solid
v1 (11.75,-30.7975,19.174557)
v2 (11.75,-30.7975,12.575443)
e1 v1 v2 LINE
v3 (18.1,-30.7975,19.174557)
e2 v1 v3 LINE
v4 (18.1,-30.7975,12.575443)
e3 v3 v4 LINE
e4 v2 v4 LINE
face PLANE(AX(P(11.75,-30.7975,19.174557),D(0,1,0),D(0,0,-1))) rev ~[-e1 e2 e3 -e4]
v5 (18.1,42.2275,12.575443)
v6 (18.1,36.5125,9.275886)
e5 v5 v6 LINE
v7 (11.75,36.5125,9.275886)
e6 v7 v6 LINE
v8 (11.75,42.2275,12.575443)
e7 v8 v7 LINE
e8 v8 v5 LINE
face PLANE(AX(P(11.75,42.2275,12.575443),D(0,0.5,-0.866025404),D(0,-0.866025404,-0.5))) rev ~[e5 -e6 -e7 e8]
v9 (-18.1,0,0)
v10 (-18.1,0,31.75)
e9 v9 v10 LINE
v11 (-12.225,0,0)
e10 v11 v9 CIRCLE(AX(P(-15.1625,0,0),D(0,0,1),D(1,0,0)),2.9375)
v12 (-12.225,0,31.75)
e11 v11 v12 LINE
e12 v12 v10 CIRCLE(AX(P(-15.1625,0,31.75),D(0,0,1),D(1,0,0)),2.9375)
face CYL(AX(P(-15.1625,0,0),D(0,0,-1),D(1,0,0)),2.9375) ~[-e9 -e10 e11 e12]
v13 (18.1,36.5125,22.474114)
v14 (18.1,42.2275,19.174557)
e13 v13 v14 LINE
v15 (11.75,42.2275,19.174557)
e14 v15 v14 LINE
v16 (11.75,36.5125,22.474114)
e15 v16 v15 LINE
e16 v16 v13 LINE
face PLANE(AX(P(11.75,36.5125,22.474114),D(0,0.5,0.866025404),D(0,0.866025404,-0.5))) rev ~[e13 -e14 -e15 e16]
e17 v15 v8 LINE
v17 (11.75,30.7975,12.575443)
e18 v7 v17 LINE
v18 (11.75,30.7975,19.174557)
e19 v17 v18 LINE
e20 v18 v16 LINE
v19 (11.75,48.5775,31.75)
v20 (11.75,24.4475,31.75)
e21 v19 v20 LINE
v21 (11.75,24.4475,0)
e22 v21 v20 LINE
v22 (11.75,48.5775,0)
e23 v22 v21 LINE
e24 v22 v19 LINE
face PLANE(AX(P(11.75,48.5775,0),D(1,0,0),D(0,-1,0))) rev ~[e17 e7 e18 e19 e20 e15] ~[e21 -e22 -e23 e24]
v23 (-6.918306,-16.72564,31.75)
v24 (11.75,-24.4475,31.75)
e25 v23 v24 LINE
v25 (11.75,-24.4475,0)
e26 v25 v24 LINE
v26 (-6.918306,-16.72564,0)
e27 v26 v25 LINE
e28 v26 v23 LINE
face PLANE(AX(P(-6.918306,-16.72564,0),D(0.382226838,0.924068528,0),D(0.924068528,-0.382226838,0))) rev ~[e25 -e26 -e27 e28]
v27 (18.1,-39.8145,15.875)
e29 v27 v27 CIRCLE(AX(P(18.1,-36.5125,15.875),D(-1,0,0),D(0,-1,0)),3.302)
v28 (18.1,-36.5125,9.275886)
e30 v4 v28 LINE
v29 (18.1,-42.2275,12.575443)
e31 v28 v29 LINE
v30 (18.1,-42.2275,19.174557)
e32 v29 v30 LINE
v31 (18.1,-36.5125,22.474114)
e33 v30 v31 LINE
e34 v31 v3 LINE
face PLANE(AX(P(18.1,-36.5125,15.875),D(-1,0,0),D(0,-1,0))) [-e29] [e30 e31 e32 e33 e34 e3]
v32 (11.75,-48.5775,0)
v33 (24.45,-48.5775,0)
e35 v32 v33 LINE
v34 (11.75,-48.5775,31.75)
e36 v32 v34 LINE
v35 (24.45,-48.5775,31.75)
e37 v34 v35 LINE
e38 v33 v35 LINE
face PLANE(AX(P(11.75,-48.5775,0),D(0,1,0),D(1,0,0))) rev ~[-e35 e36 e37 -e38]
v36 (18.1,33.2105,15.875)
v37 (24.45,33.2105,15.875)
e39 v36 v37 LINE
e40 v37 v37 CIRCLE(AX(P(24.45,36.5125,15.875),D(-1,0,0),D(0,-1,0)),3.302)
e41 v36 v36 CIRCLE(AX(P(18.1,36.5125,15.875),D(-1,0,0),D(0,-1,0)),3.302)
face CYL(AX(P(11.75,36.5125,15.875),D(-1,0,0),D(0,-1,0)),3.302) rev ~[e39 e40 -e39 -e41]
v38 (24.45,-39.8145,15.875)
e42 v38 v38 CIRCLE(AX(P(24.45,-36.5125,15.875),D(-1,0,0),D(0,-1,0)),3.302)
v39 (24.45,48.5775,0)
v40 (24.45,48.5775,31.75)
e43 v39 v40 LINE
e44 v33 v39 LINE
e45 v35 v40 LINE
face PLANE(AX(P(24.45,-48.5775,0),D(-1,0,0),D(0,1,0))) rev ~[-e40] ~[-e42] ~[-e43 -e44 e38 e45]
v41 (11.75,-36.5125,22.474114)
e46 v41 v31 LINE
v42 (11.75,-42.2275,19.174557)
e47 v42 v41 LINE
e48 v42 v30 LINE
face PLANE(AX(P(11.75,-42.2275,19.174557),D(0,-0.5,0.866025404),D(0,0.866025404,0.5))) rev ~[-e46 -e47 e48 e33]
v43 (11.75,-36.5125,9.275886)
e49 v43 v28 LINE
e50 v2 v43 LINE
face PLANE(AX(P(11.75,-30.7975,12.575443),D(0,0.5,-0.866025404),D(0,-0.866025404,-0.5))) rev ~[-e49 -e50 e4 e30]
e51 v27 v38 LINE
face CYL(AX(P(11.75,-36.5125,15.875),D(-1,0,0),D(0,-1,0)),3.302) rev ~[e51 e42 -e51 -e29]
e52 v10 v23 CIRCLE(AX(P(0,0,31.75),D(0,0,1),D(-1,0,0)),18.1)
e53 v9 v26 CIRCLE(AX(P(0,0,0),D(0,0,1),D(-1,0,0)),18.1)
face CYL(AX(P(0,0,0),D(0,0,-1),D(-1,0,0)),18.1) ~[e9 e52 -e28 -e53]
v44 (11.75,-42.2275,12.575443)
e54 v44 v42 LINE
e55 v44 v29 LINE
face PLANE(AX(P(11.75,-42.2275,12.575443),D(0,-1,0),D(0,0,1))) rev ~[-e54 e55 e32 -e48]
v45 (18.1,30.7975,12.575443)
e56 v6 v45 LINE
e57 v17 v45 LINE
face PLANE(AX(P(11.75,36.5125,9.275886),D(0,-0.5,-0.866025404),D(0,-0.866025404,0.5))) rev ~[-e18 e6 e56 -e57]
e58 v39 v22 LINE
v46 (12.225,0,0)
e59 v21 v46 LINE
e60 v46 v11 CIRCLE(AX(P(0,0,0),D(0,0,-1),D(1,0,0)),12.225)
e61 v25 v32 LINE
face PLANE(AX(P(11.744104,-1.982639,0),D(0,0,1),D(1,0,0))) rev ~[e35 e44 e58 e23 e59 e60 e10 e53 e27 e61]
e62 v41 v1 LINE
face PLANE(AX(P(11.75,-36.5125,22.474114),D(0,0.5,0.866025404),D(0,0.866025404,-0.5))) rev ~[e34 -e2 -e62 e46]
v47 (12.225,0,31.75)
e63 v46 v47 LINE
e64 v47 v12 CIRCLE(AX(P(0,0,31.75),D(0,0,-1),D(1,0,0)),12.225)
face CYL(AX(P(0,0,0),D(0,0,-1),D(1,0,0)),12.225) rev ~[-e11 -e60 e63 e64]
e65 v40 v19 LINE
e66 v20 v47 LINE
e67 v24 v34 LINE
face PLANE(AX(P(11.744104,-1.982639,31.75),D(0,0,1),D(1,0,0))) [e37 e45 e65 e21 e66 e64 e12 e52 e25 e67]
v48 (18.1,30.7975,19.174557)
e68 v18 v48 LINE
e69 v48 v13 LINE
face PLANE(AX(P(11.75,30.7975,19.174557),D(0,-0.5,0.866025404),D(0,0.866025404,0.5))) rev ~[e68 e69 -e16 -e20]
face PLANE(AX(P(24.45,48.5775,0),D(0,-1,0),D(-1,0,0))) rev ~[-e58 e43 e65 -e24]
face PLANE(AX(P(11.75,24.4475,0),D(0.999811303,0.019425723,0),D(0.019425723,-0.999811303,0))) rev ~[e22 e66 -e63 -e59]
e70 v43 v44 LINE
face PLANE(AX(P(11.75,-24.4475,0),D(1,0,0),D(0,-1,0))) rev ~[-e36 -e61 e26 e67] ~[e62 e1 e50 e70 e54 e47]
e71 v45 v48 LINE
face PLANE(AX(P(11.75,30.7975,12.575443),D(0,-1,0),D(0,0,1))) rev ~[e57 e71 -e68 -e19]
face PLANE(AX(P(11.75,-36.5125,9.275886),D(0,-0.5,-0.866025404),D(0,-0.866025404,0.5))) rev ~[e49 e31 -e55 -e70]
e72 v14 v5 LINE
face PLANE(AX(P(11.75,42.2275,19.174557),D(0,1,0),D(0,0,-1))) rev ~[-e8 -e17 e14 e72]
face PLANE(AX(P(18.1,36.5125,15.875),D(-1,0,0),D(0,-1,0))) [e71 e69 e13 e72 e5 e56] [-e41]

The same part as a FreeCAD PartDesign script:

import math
import FreeCAD as App
import Part
import Sketcher
Q = App.Units.Quantity

doc = App.newDocument("Part")
body = doc.addObject("PartDesign::Body", "Body")

# Sketch on XY plane
sketch1 = body.newObject("Sketcher::SketchObject", "Sketch")
sketch1.AttachmentSupport = (doc.getObject("XY_Plane"), [""])
sketch1.MapMode = "FlatFace"
sketch1.addGeometry([
    Part.LineSegment(App.Vector(24.4, -48.6, 0), App.Vector(24.4, 48.6, 0)),  # 0
    Part.LineSegment(App.Vector(24.4, 48.6, 0), App.Vector(11.8, 48.6, 0)),  # 1
    Part.LineSegment(App.Vector(11.8, 48.6, 0), App.Vector(11.8, 24.4, 0)),  # 2
    Part.LineSegment(App.Vector(11.8, 24.4, 0), App.Vector(12.2, 0, 0)),  # 3
    Part.ArcOfCircle(Part.Circle(App.Vector(0, 0, 0), App.Vector(0, 0, 1), 12.2), math.radians(180), math.radians(360)),  # 4
    Part.ArcOfCircle(Part.Circle(App.Vector(-15.2, 0, 0), App.Vector(0, 0, 1), 2.9), math.radians(0), math.radians(180)),  # 5
    Part.ArcOfCircle(Part.Circle(App.Vector(0, 0, 0), App.Vector(0, 0, 1), 18.1), math.radians(180), math.radians(248)),  # 6
    Part.LineSegment(App.Vector(-6.9, -16.7, 0), App.Vector(11.8, -24.4, 0)),  # 7
    Part.LineSegment(App.Vector(11.8, -24.4, 0), App.Vector(11.8, -48.6, 0)),  # 8
    Part.LineSegment(App.Vector(11.8, -48.6, 0), App.Vector(24.4, -48.6, 0)),  # 9
], False)
sketch1.addConstraint([
    Sketcher.Constraint("Coincident", 0, 2, 1, 1),
    Sketcher.Constraint("Coincident", 1, 2, 2, 1),
    Sketcher.Constraint("Coincident", 2, 2, 3, 1),
    Sketcher.Constraint("Coincident", 3, 2, 4, 2),
    Sketcher.Constraint("Tangent", 4, 1, 5, 1),
    Sketcher.Constraint("Tangent", 5, 2, 6, 1),
    Sketcher.Constraint("Tangent", 6, 2, 7, 1),
    Sketcher.Constraint("Coincident", 7, 2, 8, 1),
    Sketcher.Constraint("Coincident", 8, 2, 9, 1),
    Sketcher.Constraint("Coincident", 9, 2, 0, 1),
    Sketcher.Constraint("Vertical", 0),
    Sketcher.Constraint("Horizontal", 1),
    Sketcher.Constraint("Vertical", 2),
    Sketcher.Constraint("Vertical", 8),
    Sketcher.Constraint("Horizontal", 9),
    Sketcher.Constraint("Coincident", 4, 3, -1, 1),
    Sketcher.Constraint("Coincident", 6, 3, -1, 1),
    Sketcher.Constraint("Symmetric", 2, 2, 7, 2, -1),
    Sketcher.Constraint("PointOnObject", 5, 3, -1),
    Sketcher.Constraint("PointOnObject", 3, 2, -1),
    Sketcher.Constraint("Equal", 2, 8),
    Sketcher.Constraint("DistanceX", 1, 2, 1, 1, Q("0.5 in")),
    Sketcher.Constraint("DistanceY", 2, 2, 2, 1, Q("0.95 in")),
    Sketcher.Constraint("DistanceY", 0, 1, 0, 2, Q("3.825 in")),
    Sketcher.Constraint("Radius", 4, Q("12.225 mm")),
    Sketcher.Constraint("Radius", 5, Q("2.9375 mm")),
    Sketcher.Constraint("DistanceX", -1, 1, 0, 2, Q("24.45 mm")),
])
pad1 = body.newObject("PartDesign::Pad", "Pad")
pad1.Profile = sketch1
pad1.Length = Q("1.25 in")

# Sketch on YZ plane
sketch2 = body.newObject("Sketcher::SketchObject", "Sketch001")
sketch2.AttachmentSupport = (doc.getObject("YZ_Plane"), [""])
sketch2.MapMode = "FlatFace"
sketch2.AttachmentOffset = App.Placement(App.Vector(0, 0, 11.75), App.Rotation())
sketch2.addGeometry([
    Part.Circle(App.Vector(36.5, 15.9, 0), App.Vector(0, 0, 1), 3.3),
    Part.Circle(App.Vector(-36.5, 15.9, 0), App.Vector(0, 0, 1), 3.3),
], False)
sketch2.addConstraint([
    Sketcher.Constraint("Equal", 0, 1),
    Sketcher.Constraint("Symmetric", 0, 3, 1, 3, -2),
    Sketcher.Constraint("Diameter", 0, Q("0.26 in")),
    Sketcher.Constraint("DistanceX", -1, 1, 0, 3, Q("1.4375 in")),
    Sketcher.Constraint("DistanceY", -1, 1, 0, 3, Q("0.625 in")),
])
pocket1 = body.newObject("PartDesign::Pocket", "Pocket")
pocket1.Profile = sketch2
pocket1.Type = "ThroughAll"
pocket1.Reversed = True

# Sketch on YZ plane
sketch3 = body.newObject("Sketcher::SketchObject", "Sketch002")
sketch3.AttachmentSupport = (doc.getObject("YZ_Plane"), [""])
sketch3.MapMode = "FlatFace"
sketch3.AttachmentOffset = App.Placement(App.Vector(0, 0, 11.75), App.Rotation())
sketch3.addGeometry([
    Part.LineSegment(App.Vector(30.8, 12.6, 0), App.Vector(30.8, 19.2, 0)),  # 0
    Part.LineSegment(App.Vector(30.8, 19.2, 0), App.Vector(36.5, 22.5, 0)),  # 1
    Part.LineSegment(App.Vector(36.5, 22.5, 0), App.Vector(42.2, 19.2, 0)),  # 2
    Part.LineSegment(App.Vector(42.2, 19.2, 0), App.Vector(42.2, 12.6, 0)),  # 3
    Part.LineSegment(App.Vector(42.2, 12.6, 0), App.Vector(36.5, 9.3, 0)),  # 4
    Part.LineSegment(App.Vector(36.5, 9.3, 0), App.Vector(30.8, 12.6, 0)),  # 5
    Part.Circle(App.Vector(36.5, 15.9, 0), App.Vector(0, 0, 1), 3.3),  # 6
    Part.LineSegment(App.Vector(-30.8, 19.2, 0), App.Vector(-30.8, 12.6, 0)),  # 7
    Part.LineSegment(App.Vector(-30.8, 12.6, 0), App.Vector(-36.5, 9.3, 0)),  # 8
    Part.LineSegment(App.Vector(-36.5, 9.3, 0), App.Vector(-42.2, 12.6, 0)),  # 9
    Part.LineSegment(App.Vector(-42.2, 12.6, 0), App.Vector(-42.2, 19.2, 0)),  # 10
    Part.LineSegment(App.Vector(-42.2, 19.2, 0), App.Vector(-36.5, 22.5, 0)),  # 11
    Part.LineSegment(App.Vector(-36.5, 22.5, 0), App.Vector(-30.8, 19.2, 0)),  # 12
    Part.Circle(App.Vector(-36.5, 15.9, 0), App.Vector(0, 0, 1), 3.3),  # 13
], False)
sketch3.addConstraint([
    Sketcher.Constraint("Coincident", 0, 2, 1, 1),
    Sketcher.Constraint("Coincident", 1, 2, 2, 1),
    Sketcher.Constraint("Coincident", 2, 2, 3, 1),
    Sketcher.Constraint("Coincident", 3, 2, 4, 1),
    Sketcher.Constraint("Coincident", 4, 2, 5, 1),
    Sketcher.Constraint("Coincident", 5, 2, 0, 1),
    Sketcher.Constraint("Coincident", 7, 2, 8, 1),
    Sketcher.Constraint("Coincident", 8, 2, 9, 1),
    Sketcher.Constraint("Coincident", 9, 2, 10, 1),
    Sketcher.Constraint("Coincident", 10, 2, 11, 1),
    Sketcher.Constraint("Coincident", 11, 2, 12, 1),
    Sketcher.Constraint("Coincident", 12, 2, 7, 1),
    Sketcher.Constraint("Vertical", 0),
    Sketcher.Constraint("Vertical", 3),
    Sketcher.Constraint("Vertical", 7),
    Sketcher.Constraint("Vertical", 10),
    Sketcher.Constraint("Equal", 6, 13),
    Sketcher.Constraint("Symmetric", 6, 3, 13, 3, -2),
    Sketcher.Constraint("Symmetric", 5, 2, 7, 2, -2),
    Sketcher.Constraint("Symmetric", 4, 2, 8, 2, -2),
    Sketcher.Constraint("Symmetric", 3, 2, 9, 2, -2),
    Sketcher.Constraint("Symmetric", 1, 2, 11, 2, -2),
    Sketcher.Constraint("Parallel", 1, 4),
    Sketcher.Constraint("Parallel", 2, 5),
    Sketcher.Constraint("Parallel", 4, 8),
    Sketcher.Constraint("Parallel", 8, 11),
    Sketcher.Constraint("Parallel", 9, 12),
    Sketcher.Constraint("Horizontal", 0, 2, 2, 2),
    Sketcher.Constraint("Horizontal", 3, 2, 5, 2),
    Sketcher.Constraint("Vertical", 6, 3, 1, 2),
    Sketcher.Constraint("Diameter", 6, Q("0.26 in")),
    Sketcher.Constraint("Angle", 1, Q("30 deg")),
    Sketcher.Constraint("DistanceX", 13, 3, 2, 2, Q("3.1 in")),
    Sketcher.Constraint("DistanceX", 13, 3, 0, 2, Q("2.65 in")),
    Sketcher.Constraint("DistanceY", -1, 1, 6, 3, Q("0.625 in")),
    Sketcher.Constraint("DistanceY", 0, 1, 0, 2, Q("6.599114 mm")),
    Sketcher.Constraint("DistanceY", -1, 1, 0, 2, Q("19.174557 mm")),
])
pocket2 = body.newObject("PartDesign::Pocket", "Pocket001")
pocket2.Profile = sketch3
pocket2.Length = Q("0.25 in")
pocket2.Reversed = True

doc.recompute()
